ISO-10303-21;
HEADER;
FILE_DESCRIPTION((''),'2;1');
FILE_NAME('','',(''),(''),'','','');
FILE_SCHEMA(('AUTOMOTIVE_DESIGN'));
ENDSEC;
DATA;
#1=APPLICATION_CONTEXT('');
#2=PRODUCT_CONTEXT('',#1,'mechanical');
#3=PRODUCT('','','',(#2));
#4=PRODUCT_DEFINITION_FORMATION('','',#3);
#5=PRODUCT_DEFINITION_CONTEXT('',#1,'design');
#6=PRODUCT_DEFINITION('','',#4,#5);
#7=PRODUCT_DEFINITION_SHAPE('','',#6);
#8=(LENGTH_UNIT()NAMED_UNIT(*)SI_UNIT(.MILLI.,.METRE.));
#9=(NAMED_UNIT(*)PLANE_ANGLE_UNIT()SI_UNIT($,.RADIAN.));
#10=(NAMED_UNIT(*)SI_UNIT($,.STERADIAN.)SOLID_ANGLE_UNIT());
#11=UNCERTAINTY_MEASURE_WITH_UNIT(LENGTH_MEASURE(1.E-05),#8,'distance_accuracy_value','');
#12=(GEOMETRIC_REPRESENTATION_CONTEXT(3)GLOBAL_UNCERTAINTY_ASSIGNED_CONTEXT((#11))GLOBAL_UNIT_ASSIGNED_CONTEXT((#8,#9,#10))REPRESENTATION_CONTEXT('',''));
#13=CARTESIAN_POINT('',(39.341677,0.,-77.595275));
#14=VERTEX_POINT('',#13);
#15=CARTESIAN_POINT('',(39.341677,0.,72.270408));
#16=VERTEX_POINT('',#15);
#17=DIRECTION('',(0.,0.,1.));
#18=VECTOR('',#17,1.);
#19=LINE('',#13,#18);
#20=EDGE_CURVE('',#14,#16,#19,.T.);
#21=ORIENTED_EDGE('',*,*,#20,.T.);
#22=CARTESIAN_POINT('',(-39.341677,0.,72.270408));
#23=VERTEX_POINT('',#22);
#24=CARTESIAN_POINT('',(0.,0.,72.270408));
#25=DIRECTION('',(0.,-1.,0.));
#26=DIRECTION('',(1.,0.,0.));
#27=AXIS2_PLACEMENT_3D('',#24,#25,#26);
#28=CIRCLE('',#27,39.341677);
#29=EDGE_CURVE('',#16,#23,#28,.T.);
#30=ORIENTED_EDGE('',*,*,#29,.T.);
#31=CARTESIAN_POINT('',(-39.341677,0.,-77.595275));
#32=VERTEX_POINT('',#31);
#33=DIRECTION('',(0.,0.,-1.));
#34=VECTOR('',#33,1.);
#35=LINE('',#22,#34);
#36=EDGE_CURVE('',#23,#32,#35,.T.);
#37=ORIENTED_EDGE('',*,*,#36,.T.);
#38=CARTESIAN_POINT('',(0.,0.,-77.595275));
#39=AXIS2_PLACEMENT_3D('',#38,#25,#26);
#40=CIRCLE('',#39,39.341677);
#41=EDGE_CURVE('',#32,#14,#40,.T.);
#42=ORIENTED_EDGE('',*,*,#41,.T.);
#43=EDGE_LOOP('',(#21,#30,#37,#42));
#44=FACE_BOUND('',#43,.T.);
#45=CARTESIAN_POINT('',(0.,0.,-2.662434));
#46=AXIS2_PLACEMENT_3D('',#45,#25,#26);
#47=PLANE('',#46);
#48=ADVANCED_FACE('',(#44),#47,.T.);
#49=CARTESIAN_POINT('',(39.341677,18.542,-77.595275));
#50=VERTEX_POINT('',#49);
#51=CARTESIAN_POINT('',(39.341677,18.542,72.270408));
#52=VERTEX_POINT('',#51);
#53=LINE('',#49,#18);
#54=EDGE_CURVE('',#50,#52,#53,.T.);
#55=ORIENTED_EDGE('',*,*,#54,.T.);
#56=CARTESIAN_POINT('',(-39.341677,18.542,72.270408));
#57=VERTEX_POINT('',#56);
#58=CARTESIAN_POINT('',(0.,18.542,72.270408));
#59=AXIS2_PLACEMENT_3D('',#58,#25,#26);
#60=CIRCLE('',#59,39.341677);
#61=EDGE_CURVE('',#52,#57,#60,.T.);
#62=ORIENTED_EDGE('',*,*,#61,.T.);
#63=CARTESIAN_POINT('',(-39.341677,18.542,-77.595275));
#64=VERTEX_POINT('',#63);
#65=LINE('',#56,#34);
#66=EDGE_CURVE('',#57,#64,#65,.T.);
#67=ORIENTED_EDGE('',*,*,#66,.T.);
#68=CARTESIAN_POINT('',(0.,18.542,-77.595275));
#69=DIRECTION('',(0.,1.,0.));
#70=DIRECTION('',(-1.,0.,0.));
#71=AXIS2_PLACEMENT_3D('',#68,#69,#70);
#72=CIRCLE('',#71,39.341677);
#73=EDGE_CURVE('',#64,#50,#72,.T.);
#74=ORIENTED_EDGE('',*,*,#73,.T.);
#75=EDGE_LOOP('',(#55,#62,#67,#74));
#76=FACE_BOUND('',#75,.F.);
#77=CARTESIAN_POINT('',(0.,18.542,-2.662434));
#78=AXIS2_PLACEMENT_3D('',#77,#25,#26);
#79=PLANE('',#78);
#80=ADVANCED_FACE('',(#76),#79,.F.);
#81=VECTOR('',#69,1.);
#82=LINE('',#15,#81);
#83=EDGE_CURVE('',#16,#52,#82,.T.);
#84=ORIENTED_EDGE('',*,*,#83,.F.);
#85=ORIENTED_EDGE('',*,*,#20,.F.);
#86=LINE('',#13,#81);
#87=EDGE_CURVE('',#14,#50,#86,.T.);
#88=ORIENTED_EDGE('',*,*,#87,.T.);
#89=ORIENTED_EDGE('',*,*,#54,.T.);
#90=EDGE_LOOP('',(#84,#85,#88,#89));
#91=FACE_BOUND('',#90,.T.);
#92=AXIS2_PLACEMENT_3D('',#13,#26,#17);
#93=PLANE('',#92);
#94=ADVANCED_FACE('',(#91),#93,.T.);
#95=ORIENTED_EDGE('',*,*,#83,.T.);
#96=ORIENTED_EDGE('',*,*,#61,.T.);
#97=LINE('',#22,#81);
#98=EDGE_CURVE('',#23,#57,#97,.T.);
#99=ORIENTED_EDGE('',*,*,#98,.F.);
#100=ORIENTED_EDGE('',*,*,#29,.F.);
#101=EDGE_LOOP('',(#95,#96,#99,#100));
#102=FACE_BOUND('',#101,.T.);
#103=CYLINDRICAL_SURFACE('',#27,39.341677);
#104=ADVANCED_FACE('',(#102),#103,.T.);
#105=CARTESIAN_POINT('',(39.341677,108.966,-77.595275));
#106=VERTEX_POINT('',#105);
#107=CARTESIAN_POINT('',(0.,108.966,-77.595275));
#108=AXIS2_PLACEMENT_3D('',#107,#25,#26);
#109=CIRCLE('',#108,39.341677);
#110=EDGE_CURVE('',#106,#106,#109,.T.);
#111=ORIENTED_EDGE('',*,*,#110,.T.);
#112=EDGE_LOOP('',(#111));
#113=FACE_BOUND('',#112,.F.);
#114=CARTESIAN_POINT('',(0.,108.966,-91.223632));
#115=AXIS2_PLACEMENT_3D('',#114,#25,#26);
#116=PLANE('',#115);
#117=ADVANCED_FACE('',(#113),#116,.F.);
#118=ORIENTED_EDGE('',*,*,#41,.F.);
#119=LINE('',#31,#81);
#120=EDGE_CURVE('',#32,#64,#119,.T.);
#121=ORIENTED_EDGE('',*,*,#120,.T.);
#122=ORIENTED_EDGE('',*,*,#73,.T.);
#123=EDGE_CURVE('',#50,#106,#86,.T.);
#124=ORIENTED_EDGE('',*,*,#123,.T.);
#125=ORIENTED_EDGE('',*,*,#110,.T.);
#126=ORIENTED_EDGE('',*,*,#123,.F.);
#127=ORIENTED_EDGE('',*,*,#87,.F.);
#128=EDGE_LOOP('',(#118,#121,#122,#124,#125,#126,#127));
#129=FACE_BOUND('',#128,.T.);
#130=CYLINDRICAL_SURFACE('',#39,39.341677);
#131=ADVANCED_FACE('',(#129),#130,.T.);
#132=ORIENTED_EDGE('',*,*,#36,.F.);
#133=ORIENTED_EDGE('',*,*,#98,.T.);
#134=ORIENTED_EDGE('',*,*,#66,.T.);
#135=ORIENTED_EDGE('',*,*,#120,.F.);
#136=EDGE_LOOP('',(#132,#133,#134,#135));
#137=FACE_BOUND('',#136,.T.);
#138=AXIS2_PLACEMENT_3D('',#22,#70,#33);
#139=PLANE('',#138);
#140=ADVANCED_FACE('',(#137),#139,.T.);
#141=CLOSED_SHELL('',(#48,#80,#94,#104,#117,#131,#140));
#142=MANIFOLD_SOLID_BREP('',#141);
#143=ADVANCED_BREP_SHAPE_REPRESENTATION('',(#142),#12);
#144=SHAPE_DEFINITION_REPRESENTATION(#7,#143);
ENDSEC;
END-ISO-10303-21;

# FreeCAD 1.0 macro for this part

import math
import FreeCAD as App
import Part
import Sketcher

V = App.Vector
Q = App.Units.Quantity

doc = App.newDocument("Part")
body = doc.addObject("PartDesign::Body", "Body")

sketch1 = doc.addObject("Sketcher::SketchObject", "Sketch")
body.addObject(sketch1)
sketch1.AttachmentSupport = (doc.XZ_Plane, [""])
sketch1.MapMode = "FlatFace"
sketch1.addGeometry(Part.Circle(V(0, -77.595275, 0), V(0, 0, 1), 39.341677), False)
sketch1.addConstraint(Sketcher.Constraint("PointOnObject", 0, 3, -2))
sketch1.addConstraint(Sketcher.Constraint("Diameter", 0, 78.683354))
sketch1.addConstraint(Sketcher.Constraint("DistanceY", 0, 3, -1, 1, 77.595275))
pad1 = doc.addObject("PartDesign::Pad", "Pad")
body.addObject(pad1)
pad1.Profile = sketch1
pad1.Length = Q("4.29 in")
pad1.Reversed = True

sketch2 = doc.addObject("Sketcher::SketchObject", "Sketch001")
body.addObject(sketch2)
sketch2.AttachmentSupport = (doc.XZ_Plane, [""])
sketch2.MapMode = "FlatFace"
sketch2.addGeometry(Part.LineSegment(V(39.341677, -77.595275, 0), V(39.341677, 72.270408, 0)), False)
sketch2.addGeometry(Part.ArcOfCircle(Part.Circle(V(0, 72.270408, 0), V(0, 0, 1), 39.341677), math.radians(0), math.radians(180)), False)
sketch2.addGeometry(Part.LineSegment(V(-39.341677, 72.270408, 0), V(-39.341677, -77.595275, 0)), False)
sketch2.addGeometry(Part.ArcOfCircle(Part.Circle(V(0, -77.595275, 0), V(0, 0, 1), 39.341677), math.radians(0), math.radians(180)), False)
sketch2.addConstraint(Sketcher.Constraint("Tangent", 0, 2, 1, 1))
sketch2.addConstraint(Sketcher.Constraint("Tangent", 1, 2, 2, 1))
sketch2.addConstraint(Sketcher.Constraint("Tangent", 2, 2, 3, 2))
sketch2.addConstraint(Sketcher.Constraint("Tangent", 3, 1, 0, 1))
sketch2.addConstraint(Sketcher.Constraint("Vertical", 0))
sketch2.addConstraint(Sketcher.Constraint("Vertical", 2))
sketch2.addConstraint(Sketcher.Constraint("PointOnObject", 1, 3, -2))
sketch2.addConstraint(Sketcher.Constraint("Radius", 1, 39.341677))
sketch2.addConstraint(Sketcher.Constraint("DistanceY", 0, 1, 0, 2, 149.865683))
sketch2.addConstraint(Sketcher.Constraint("DistanceY", -1, 1, 1, 3, 72.270408))
pad2 = doc.addObject("PartDesign::Pad", "Pad001")
body.addObject(pad2)
pad2.Profile = sketch2
pad2.Length = Q("0.73 in")
pad2.Reversed = True

doc.recompute()
